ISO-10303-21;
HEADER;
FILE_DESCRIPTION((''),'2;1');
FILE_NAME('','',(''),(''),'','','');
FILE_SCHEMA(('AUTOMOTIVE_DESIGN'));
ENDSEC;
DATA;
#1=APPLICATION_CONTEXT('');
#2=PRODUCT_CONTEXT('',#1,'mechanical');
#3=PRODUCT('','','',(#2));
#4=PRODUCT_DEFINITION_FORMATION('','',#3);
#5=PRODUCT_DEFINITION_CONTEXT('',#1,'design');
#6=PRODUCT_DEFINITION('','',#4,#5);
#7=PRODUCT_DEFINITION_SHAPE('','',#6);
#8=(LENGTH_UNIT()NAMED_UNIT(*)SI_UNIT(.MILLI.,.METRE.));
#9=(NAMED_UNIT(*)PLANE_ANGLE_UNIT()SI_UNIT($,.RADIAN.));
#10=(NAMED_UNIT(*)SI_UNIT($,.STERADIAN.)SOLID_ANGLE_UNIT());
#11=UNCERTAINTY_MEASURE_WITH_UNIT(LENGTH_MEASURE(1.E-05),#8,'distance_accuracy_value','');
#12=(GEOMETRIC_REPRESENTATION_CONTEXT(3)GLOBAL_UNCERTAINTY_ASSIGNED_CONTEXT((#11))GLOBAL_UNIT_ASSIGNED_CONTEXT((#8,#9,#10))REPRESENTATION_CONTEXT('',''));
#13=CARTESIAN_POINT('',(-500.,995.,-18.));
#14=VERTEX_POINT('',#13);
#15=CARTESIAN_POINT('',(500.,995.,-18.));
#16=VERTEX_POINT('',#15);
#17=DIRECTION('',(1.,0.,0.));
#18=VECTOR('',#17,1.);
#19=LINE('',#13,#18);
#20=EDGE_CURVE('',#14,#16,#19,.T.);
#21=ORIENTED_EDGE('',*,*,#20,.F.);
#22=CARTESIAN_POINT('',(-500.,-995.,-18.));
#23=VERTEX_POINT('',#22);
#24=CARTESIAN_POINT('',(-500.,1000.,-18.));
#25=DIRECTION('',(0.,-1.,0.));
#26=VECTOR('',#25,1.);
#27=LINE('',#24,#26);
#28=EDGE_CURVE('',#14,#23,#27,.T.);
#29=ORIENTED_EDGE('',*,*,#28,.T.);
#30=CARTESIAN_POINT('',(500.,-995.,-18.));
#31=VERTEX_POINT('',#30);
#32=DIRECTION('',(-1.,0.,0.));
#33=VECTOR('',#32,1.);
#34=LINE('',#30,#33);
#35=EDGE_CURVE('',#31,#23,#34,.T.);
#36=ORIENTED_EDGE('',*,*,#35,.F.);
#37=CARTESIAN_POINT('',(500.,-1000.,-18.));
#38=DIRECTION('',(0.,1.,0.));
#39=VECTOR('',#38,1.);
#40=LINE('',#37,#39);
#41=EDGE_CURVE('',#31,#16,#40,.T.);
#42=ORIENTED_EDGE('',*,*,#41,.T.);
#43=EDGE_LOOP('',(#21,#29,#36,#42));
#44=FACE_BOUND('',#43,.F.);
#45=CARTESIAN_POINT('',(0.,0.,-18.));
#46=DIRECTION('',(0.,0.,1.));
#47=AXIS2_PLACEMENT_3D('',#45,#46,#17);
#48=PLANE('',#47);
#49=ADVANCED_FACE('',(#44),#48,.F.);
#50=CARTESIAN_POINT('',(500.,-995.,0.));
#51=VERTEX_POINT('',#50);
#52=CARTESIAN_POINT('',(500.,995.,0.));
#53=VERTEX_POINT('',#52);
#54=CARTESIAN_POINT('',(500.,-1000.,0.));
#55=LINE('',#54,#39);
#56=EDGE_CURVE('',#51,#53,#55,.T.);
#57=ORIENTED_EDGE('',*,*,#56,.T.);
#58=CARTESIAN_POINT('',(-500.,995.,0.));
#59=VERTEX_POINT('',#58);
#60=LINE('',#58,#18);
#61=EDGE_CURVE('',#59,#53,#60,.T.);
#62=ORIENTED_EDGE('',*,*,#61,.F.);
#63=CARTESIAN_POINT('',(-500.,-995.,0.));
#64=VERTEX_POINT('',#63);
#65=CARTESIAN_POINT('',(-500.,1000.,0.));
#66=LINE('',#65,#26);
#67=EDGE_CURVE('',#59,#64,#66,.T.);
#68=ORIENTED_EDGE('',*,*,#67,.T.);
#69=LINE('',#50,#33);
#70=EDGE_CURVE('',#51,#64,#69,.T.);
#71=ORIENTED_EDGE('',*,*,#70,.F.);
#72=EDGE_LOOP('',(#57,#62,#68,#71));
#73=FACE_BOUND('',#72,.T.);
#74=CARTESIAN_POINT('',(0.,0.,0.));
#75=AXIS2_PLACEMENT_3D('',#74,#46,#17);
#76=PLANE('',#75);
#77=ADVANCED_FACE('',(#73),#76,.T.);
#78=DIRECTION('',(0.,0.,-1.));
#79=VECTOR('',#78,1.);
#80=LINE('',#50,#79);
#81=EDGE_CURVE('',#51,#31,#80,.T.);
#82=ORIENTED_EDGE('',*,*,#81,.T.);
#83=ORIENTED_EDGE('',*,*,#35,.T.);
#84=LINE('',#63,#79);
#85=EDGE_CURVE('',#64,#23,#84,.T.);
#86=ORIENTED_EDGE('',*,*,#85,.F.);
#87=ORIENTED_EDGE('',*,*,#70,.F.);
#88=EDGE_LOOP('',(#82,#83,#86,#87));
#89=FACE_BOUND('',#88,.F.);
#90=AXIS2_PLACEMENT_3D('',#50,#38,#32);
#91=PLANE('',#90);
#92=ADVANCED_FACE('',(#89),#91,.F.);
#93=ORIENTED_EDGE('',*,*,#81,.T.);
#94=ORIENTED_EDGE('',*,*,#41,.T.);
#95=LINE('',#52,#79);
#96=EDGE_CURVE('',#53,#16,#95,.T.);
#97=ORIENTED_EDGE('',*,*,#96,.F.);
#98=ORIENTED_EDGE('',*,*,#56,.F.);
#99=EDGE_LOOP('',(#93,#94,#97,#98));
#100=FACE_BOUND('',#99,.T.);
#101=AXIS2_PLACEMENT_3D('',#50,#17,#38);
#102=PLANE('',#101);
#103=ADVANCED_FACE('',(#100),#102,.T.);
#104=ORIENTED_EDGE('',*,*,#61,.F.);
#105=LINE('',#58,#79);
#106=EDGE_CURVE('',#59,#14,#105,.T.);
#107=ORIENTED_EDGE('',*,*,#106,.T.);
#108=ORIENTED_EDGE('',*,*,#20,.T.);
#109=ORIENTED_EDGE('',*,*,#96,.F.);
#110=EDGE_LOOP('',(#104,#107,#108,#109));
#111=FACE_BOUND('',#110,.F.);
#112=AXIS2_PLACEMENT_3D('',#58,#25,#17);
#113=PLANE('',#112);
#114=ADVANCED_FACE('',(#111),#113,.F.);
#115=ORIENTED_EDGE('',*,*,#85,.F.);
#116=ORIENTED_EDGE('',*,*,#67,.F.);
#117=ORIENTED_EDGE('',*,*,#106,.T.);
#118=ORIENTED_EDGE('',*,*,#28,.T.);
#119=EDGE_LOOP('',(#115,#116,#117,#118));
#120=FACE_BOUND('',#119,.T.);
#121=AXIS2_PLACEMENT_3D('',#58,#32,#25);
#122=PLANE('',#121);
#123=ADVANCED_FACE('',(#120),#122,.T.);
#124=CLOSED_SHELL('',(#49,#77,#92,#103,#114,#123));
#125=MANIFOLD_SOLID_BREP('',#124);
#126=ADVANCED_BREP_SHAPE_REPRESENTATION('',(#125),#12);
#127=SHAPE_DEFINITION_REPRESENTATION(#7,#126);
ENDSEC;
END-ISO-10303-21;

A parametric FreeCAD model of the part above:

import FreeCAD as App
import Part
import Sketcher

V = App.Vector
Q = App.Units.Quantity

doc = App.newDocument("Part")
body = doc.addObject("PartDesign::Body", "Body")

# Sketch on XY plane
sketch1 = body.newObject("Sketcher::SketchObject", "Sketch")
sketch1.AttachmentSupport = (doc.getObject("XY_Plane"), [""])
sketch1.MapMode = "FlatFace"
sketch1.addGeometry(Part.LineSegment(V(500, -995, 0), V(500, 995, 0)), False)
sketch1.addGeometry(Part.LineSegment(V(500, 995, 0), V(-500, 995, 0)), False)
sketch1.addGeometry(Part.LineSegment(V(-500, 995, 0), V(-500, -995, 0)), False)
sketch1.addGeometry(Part.LineSegment(V(-500, -995, 0), V(500, -995, 0)), False)
sketch1.addConstraint(Sketcher.Constraint("Coincident", 0, 2, 1, 1))
sketch1.addConstraint(Sketcher.Constraint("Coincident", 1, 2, 2, 1))
sketch1.addConstraint(Sketcher.Constraint("Coincident", 2, 2, 3, 1))
sketch1.addConstraint(Sketcher.Constraint("Coincident", 3, 2, 0, 1))
sketch1.addConstraint(Sketcher.Constraint("Vertical", 0))
sketch1.addConstraint(Sketcher.Constraint("Horizontal", 1))
sketch1.addConstraint(Sketcher.Constraint("Vertical", 2))
sketch1.addConstraint(Sketcher.Constraint("Horizontal", 3))
sketch1.addConstraint(Sketcher.Constraint("Symmetric", 0, 2, 2, 2, -1, 1))
sketch1.addConstraint(Sketcher.Constraint("DistanceX", 1, 2, 1, 1, Q("1000 mm")))
sketch1.addConstraint(Sketcher.Constraint("DistanceY", 0, 1, 0, 2, Q("1990 mm")))
pad1 = body.newObject("PartDesign::Pad", "Pad")
pad1.Profile = sketch1
pad1.Length = 18
pad1.Reversed = True

doc.recompute()
